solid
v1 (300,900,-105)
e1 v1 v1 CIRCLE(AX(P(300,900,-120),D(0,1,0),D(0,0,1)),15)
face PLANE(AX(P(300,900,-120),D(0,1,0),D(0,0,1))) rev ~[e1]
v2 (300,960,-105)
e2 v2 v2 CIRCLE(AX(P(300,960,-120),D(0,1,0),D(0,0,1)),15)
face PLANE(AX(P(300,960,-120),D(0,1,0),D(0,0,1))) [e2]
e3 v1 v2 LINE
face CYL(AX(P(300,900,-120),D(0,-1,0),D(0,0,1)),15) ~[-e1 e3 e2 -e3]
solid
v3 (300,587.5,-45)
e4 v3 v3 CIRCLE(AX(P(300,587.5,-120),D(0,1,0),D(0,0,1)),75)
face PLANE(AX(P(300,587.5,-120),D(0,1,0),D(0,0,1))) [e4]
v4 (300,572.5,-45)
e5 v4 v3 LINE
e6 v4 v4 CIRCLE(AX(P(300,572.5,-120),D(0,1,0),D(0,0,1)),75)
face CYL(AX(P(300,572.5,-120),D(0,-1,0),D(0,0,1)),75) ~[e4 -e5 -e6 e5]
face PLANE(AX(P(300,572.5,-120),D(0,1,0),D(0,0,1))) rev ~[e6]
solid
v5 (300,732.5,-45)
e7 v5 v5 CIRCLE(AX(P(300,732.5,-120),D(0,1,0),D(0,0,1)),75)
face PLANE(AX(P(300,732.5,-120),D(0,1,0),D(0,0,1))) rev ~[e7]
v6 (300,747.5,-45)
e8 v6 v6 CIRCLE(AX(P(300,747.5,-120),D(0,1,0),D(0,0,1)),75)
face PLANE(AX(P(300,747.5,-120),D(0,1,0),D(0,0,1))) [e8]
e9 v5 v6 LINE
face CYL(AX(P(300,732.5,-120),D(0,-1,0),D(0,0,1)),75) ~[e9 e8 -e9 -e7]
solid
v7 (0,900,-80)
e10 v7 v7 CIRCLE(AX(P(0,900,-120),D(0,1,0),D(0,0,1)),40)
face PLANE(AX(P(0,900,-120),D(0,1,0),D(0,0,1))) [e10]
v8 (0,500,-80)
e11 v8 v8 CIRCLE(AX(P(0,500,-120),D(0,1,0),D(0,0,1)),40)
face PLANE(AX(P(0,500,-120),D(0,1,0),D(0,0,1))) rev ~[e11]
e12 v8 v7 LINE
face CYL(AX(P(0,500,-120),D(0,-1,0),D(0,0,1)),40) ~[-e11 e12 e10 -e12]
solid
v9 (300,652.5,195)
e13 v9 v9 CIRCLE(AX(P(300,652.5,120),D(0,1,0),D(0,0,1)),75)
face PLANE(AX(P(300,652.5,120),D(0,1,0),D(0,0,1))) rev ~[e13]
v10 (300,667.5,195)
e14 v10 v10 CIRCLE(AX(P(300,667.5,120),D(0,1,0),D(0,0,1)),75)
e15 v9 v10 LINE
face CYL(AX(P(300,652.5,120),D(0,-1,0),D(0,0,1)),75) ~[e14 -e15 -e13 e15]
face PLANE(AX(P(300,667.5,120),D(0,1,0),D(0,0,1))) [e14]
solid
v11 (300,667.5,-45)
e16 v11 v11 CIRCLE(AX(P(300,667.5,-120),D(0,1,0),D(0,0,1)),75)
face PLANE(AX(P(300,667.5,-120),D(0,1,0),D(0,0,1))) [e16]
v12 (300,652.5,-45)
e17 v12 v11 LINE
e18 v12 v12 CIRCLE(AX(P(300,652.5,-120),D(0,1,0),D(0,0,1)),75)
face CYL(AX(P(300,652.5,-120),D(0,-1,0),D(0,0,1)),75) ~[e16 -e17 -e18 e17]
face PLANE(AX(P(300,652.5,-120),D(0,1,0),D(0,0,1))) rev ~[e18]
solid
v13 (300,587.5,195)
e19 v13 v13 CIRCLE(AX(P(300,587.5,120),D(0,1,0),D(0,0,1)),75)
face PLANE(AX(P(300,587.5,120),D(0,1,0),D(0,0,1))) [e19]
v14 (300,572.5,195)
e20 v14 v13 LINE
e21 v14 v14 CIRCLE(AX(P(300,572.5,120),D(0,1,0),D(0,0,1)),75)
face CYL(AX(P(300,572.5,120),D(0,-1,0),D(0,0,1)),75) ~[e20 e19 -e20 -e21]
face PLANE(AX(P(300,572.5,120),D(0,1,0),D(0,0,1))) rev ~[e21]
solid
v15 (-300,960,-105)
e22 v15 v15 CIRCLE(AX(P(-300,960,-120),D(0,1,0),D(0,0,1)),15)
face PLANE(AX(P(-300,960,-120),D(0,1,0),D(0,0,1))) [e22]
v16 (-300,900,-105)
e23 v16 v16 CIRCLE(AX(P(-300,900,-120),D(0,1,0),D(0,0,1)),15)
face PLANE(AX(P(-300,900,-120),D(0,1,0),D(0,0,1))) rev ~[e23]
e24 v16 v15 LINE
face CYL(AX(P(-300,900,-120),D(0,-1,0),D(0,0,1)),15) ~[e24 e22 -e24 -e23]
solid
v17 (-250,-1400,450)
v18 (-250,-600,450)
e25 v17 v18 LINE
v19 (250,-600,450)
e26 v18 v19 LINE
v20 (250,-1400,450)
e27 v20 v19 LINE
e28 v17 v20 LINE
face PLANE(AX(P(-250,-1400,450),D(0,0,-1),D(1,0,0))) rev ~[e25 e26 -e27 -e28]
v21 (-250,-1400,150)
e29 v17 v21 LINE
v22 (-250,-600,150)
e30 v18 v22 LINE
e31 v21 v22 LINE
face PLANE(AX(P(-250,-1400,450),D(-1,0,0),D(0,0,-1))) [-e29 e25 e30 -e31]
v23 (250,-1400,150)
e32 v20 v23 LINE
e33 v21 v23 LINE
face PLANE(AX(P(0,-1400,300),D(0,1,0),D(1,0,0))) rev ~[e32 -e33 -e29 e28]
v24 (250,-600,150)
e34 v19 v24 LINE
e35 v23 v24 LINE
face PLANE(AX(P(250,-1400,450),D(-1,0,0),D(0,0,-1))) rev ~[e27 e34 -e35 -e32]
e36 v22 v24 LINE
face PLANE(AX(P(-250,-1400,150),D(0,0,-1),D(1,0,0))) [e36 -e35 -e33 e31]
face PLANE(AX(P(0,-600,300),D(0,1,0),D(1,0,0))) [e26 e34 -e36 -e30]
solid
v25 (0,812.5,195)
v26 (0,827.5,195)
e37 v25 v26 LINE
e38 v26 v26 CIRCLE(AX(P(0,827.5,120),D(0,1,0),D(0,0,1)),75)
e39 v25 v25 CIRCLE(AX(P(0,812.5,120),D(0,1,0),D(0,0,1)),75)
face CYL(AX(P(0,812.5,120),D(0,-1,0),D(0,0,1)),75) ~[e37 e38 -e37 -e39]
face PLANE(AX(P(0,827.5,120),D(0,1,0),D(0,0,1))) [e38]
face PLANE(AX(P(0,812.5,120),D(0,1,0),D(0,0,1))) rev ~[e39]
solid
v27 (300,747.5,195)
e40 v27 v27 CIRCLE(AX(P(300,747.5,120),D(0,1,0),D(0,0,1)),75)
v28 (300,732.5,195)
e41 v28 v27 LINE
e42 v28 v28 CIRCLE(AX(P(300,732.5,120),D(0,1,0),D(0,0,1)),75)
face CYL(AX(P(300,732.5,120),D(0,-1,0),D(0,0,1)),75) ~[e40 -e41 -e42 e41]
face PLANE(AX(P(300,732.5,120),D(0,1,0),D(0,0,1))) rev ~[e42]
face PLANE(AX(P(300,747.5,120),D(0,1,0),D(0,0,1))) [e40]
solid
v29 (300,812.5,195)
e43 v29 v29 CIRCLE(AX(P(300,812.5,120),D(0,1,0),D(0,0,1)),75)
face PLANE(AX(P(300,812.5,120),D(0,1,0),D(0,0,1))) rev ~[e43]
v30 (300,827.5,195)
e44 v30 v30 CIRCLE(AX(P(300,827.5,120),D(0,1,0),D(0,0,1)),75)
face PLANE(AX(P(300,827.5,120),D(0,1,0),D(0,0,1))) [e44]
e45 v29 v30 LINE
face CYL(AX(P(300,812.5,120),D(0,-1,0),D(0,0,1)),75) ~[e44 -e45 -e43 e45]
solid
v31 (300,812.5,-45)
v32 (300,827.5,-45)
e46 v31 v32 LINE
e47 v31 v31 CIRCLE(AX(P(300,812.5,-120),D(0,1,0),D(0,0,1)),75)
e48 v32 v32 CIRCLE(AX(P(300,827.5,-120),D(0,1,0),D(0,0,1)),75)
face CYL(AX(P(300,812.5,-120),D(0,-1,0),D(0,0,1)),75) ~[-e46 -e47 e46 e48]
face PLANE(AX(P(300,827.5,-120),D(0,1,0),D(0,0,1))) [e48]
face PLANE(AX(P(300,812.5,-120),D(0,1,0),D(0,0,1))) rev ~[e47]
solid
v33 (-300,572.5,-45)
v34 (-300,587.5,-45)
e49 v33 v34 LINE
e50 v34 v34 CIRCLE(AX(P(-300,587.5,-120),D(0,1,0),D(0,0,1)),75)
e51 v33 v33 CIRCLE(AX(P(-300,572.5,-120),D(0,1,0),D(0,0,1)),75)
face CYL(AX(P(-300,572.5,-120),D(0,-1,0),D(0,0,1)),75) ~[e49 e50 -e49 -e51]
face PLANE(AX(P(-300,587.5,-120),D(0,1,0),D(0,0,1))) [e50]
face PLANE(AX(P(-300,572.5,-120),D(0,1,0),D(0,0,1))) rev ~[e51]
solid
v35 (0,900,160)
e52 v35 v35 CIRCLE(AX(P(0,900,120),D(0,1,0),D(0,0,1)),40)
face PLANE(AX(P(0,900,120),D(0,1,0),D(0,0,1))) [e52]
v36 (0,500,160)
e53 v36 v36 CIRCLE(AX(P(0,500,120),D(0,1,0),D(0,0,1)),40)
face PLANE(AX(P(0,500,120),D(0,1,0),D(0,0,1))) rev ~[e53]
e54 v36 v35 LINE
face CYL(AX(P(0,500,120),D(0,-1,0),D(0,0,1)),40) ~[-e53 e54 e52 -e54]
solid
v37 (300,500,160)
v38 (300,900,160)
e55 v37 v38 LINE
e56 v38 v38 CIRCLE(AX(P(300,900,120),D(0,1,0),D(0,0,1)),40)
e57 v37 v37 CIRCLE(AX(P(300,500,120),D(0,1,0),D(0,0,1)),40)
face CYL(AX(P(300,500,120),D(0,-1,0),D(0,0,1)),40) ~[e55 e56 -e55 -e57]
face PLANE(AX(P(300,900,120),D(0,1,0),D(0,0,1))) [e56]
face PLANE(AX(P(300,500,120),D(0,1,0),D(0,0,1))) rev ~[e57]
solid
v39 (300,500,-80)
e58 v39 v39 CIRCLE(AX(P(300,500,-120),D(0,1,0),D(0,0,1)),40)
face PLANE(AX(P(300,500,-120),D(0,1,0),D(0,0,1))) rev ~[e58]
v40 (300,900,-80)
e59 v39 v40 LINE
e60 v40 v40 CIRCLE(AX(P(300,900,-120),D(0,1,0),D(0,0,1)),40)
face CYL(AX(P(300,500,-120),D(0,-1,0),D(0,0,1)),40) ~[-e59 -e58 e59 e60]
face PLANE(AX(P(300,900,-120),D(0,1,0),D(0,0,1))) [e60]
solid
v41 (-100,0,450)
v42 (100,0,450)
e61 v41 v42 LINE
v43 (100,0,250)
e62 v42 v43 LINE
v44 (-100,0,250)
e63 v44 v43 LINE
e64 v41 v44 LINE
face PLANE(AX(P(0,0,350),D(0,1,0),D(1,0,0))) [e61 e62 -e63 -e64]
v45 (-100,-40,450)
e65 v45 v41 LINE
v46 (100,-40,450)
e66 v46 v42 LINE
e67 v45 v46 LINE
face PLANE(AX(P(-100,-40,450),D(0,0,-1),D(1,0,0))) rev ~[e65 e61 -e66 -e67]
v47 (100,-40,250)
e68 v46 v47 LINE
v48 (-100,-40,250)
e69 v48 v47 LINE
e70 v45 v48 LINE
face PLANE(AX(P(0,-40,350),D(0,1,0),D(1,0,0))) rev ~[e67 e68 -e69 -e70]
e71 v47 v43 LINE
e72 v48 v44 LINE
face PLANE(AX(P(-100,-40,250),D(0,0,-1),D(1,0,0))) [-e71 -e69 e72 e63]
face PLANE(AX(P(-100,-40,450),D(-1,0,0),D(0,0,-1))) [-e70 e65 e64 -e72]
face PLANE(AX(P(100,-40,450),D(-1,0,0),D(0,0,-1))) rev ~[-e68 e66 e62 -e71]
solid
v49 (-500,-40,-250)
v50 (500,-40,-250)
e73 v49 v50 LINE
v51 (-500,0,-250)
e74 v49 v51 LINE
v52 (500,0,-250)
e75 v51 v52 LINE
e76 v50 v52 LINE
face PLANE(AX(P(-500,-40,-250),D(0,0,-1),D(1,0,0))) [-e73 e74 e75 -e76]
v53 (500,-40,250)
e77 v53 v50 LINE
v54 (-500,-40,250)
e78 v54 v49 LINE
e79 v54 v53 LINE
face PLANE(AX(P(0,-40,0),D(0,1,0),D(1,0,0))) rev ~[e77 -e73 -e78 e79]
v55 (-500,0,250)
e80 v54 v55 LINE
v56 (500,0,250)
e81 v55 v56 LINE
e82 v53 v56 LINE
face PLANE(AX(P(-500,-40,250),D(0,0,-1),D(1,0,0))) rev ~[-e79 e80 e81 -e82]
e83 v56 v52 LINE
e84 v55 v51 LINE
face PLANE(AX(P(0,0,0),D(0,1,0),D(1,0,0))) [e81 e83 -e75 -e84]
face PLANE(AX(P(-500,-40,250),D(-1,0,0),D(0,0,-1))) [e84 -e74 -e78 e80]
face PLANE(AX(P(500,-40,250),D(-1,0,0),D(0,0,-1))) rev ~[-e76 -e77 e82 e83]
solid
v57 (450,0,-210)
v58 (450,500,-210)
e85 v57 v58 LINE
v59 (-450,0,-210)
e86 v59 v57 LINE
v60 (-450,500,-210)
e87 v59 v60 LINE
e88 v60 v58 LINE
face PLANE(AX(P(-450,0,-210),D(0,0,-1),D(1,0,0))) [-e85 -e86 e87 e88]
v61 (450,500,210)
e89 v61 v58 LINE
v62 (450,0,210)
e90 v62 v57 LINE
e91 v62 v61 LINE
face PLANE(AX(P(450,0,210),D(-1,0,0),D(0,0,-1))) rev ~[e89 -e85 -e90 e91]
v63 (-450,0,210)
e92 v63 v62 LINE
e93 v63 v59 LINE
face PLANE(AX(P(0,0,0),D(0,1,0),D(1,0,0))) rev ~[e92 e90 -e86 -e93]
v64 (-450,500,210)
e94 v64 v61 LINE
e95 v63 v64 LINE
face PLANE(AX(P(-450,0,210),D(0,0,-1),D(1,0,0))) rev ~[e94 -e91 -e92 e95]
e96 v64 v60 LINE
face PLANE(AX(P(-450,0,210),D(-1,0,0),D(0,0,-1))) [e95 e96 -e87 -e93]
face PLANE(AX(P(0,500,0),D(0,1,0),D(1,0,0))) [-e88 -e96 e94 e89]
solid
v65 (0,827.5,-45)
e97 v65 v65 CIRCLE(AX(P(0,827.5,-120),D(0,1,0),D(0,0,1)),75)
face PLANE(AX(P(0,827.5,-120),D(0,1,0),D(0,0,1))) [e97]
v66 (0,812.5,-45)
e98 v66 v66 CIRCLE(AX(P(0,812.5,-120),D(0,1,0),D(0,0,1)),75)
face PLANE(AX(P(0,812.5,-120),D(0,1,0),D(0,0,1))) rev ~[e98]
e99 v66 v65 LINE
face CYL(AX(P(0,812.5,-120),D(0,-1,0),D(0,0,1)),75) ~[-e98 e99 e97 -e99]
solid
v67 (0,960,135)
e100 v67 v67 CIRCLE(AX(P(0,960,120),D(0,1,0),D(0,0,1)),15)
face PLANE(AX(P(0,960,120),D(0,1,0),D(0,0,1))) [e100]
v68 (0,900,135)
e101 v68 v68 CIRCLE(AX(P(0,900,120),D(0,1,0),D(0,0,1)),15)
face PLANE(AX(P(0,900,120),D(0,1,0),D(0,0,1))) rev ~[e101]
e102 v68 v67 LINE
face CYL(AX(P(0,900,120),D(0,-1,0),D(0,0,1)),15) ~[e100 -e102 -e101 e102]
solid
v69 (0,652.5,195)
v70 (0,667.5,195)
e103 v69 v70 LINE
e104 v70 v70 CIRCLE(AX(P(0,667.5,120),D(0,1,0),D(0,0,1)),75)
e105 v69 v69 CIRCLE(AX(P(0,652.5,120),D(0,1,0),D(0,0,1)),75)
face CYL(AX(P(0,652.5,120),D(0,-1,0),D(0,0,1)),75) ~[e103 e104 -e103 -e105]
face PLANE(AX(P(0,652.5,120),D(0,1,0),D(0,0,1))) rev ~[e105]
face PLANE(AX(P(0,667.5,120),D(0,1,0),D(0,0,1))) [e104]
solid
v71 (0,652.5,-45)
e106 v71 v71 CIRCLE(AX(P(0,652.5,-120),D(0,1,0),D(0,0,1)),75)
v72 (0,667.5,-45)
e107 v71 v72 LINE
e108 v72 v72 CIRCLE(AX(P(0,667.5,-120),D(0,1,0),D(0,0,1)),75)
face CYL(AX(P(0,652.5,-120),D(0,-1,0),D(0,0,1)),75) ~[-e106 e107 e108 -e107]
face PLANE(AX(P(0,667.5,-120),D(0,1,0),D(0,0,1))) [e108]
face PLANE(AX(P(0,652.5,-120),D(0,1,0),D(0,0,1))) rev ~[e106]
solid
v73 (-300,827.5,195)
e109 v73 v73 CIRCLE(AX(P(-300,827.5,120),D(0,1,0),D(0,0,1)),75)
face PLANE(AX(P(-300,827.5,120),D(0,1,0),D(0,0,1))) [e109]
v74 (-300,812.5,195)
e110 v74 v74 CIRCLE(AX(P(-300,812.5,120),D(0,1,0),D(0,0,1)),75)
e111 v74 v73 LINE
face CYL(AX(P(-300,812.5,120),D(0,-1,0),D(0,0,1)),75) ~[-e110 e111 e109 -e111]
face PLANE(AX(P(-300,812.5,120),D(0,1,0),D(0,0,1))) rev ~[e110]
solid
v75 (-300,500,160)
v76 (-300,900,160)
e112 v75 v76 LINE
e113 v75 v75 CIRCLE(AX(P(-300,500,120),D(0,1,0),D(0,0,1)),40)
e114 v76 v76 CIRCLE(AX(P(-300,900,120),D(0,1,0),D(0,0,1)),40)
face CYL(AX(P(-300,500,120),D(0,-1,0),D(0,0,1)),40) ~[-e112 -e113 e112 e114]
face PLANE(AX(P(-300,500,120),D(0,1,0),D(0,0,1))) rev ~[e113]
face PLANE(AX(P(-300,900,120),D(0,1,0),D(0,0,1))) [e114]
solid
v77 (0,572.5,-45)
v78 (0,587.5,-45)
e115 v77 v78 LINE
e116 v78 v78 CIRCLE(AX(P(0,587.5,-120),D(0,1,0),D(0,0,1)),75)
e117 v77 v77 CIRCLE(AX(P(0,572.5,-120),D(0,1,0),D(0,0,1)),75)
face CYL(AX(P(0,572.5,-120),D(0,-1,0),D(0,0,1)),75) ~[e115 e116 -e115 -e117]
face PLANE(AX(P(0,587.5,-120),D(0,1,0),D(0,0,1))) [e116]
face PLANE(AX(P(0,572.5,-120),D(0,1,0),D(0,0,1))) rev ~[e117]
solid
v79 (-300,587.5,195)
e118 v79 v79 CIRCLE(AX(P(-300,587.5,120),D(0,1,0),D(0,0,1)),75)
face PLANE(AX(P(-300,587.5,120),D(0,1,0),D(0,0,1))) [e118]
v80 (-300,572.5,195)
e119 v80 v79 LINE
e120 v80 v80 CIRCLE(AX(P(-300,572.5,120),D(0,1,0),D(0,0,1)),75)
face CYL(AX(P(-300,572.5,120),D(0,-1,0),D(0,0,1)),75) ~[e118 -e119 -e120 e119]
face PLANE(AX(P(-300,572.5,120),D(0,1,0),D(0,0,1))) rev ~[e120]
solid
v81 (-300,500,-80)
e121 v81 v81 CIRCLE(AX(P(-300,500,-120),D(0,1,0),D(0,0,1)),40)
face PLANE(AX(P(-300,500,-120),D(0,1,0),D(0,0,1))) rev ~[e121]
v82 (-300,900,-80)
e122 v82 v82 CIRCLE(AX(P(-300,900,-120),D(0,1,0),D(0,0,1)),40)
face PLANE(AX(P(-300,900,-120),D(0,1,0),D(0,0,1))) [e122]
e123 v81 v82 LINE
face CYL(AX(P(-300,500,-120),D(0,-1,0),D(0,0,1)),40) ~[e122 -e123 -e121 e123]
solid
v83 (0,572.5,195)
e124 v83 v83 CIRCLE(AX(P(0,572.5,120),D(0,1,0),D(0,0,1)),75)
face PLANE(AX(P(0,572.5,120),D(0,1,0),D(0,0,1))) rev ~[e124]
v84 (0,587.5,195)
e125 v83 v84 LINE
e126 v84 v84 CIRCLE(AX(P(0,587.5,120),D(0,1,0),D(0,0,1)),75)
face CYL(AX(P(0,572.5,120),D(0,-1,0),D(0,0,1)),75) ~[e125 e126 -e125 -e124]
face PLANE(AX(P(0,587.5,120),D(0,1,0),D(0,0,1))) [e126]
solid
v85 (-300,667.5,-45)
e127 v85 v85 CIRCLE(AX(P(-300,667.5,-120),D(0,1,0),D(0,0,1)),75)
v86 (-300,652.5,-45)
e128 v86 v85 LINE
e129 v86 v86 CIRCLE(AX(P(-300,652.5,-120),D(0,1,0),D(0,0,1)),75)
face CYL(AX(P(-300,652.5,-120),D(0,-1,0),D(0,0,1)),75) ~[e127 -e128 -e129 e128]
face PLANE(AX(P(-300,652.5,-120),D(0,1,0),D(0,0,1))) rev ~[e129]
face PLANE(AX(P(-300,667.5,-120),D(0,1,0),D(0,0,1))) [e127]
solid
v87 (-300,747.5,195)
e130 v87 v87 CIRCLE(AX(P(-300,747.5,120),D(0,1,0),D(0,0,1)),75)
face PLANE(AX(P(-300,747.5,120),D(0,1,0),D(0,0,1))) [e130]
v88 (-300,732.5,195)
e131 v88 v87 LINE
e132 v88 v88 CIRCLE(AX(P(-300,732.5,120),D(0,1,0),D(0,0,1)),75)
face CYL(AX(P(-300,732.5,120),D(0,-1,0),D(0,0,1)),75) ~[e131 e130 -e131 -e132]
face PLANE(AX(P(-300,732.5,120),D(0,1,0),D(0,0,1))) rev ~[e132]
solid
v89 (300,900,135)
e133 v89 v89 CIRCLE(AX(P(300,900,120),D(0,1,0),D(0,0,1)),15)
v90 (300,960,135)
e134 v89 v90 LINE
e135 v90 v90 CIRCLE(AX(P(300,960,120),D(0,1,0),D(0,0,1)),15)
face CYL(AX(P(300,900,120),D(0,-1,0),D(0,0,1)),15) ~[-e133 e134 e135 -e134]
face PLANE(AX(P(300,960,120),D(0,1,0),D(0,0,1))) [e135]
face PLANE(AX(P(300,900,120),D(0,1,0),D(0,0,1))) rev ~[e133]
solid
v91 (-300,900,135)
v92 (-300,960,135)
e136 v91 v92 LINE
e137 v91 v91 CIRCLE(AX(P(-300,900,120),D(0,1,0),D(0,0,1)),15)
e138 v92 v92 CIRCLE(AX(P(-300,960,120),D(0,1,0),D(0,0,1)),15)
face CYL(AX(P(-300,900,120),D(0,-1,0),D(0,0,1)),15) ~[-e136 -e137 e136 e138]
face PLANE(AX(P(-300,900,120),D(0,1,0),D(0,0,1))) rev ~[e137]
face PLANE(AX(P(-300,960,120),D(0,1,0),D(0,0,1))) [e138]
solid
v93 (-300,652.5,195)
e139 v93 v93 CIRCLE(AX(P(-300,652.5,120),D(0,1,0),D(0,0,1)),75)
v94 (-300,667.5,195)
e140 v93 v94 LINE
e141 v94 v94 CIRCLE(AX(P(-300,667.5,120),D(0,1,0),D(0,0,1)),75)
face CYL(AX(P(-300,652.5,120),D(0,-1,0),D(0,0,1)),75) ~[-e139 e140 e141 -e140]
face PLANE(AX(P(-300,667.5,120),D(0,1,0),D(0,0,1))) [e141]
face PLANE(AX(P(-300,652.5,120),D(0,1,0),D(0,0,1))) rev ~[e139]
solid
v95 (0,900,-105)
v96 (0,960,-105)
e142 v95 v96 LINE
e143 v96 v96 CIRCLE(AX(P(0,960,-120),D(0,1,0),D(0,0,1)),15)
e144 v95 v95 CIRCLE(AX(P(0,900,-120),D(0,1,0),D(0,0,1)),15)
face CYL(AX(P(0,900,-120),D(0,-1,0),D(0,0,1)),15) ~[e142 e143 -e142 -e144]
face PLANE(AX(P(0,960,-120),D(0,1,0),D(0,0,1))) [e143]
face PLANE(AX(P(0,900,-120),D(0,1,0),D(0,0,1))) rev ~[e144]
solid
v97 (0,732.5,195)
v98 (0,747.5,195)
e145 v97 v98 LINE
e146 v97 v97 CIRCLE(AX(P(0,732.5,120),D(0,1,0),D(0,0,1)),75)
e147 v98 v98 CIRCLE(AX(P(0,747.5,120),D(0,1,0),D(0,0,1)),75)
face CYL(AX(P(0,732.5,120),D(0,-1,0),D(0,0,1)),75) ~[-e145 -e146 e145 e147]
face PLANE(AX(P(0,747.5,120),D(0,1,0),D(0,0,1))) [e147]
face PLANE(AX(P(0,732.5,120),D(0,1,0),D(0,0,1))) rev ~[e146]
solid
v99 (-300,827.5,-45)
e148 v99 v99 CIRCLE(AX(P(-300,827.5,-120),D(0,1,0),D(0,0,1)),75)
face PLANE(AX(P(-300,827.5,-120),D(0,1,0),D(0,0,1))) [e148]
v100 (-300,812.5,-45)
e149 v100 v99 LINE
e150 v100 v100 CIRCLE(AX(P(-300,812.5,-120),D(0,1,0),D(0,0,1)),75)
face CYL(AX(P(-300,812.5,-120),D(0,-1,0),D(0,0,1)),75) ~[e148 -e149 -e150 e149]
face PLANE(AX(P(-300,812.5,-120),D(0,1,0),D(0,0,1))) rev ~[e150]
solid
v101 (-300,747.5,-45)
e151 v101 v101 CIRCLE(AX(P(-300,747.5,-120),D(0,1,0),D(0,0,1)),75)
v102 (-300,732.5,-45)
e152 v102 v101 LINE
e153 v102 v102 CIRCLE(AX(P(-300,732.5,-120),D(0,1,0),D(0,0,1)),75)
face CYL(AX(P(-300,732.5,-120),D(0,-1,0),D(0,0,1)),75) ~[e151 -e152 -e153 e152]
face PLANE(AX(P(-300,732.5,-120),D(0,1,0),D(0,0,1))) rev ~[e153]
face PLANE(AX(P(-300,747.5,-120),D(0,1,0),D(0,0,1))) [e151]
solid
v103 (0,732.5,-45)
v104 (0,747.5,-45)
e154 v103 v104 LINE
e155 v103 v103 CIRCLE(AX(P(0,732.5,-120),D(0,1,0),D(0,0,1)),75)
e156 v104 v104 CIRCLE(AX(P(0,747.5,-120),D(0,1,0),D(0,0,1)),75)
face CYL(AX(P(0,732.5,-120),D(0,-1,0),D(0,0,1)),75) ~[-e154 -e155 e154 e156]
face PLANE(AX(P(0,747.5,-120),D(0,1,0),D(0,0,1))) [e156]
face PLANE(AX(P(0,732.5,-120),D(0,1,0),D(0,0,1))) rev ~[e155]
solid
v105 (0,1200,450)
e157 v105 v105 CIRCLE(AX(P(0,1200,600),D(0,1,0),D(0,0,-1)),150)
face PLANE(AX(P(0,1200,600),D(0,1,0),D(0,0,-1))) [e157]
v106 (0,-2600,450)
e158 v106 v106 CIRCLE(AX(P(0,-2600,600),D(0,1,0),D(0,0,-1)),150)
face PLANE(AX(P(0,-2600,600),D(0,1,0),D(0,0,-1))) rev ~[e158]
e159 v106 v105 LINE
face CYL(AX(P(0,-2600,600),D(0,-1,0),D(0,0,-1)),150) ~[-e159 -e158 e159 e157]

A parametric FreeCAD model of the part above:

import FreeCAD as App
import Part
import Sketcher


def add_polygon(sketch, points):
    """Adds a closed chain of lines whose ends are joined by coincident constraints."""
    first, n = sketch.GeometryCount, len(points)
    for a, b in zip(points, points[1:] + points[:1]):
        sketch.addGeometry(Part.LineSegment(App.Vector(*a, 0), App.Vector(*b, 0)), False)
    for i in range(n):
        sketch.addConstraint(Sketcher.Constraint("Coincident", first + i, 2, first + (i + 1) % n, 1))

doc = App.newDocument("Part")
body = doc.addObject("PartDesign::Body", "Body")

# Sketch on XZ plane
sketch1 = doc.addObject("Sketcher::SketchObject", "Sketch")
body.addObject(sketch1)
sketch1.AttachmentSupport = (doc.XZ_Plane, [""])
sketch1.MapMode = "FlatFace"
add_polygon(sketch1, [(-450, -210), (-450, 210), (450, 210), (450, -210)])  # lines 0-3
sketch1.addConstraint(Sketcher.Constraint("Vertical", 0))
sketch1.addConstraint(Sketcher.Constraint("Horizontal", 1))
sketch1.addConstraint(Sketcher.Constraint("Vertical", 2))
sketch1.addConstraint(Sketcher.Constraint("Horizontal", 3))
sketch1.addConstraint(Sketcher.Constraint("Symmetric", 0, 2, 2, 2, -1, 1))
sketch1.addConstraint(Sketcher.Constraint("DistanceX", 1, 1, 1, 2, 900.0))
sketch1.addConstraint(Sketcher.Constraint("DistanceY", 0, 1, 0, 2, 420.0))
pad1 = doc.addObject("PartDesign::Pad", "Pad")
body.addObject(pad1)
pad1.Profile = sketch1
pad1.Length = 500
pad1.Reversed = True
body2 = doc.addObject("PartDesign::Body", "Body001")

# Sketch on XZ plane
sketch2 = doc.addObject("Sketcher::SketchObject", "Sketch001")
body2.addObject(sketch2)
sketch2.AttachmentSupport = (doc.getObject("XZ_Plane001"), [""])
sketch2.MapMode = "FlatFace"
sketch2.AttachmentOffset = App.Placement(App.Vector(0, 0, 40), App.Rotation())
add_polygon(sketch2, [(-500, -250), (-500, 250), (500, 250), (500, -250)])  # lines 0-3
sketch2.addConstraint(Sketcher.Constraint("Vertical", 0))
sketch2.addConstraint(Sketcher.Constraint("Horizontal", 1))
sketch2.addConstraint(Sketcher.Constraint("Vertical", 2))
sketch2.addConstraint(Sketcher.Constraint("Horizontal", 3))
sketch2.addConstraint(Sketcher.Constraint("Symmetric", 0, 2, 2, 2, -1, 1))
sketch2.addConstraint(Sketcher.Constraint("DistanceX", 1, 1, 1, 2, 1000.0))
sketch2.addConstraint(Sketcher.Constraint("DistanceY", 0, 1, 0, 2, 500.0))
pad2 = doc.addObject("PartDesign::Pad", "Pad001")
body2.addObject(pad2)
pad2.Profile = sketch2
pad2.Length = 40
pad2.Reversed = True
body3 = doc.addObject("PartDesign::Body", "Body002")

# Sketch on XZ plane
sketch3 = doc.addObject("Sketcher::SketchObject", "Sketch002")
body3.addObject(sketch3)
sketch3.AttachmentSupport = (doc.getObject("XZ_Plane002"), [""])
sketch3.MapMode = "FlatFace"
sketch3.AttachmentOffset = App.Placement(App.Vector(0, 0, 40), App.Rotation())
add_polygon(sketch3, [(-100, 250), (-100, 450), (100, 450), (100, 250)])  # lines 0-3
sketch3.addConstraint(Sketcher.Constraint("Vertical", 0))
sketch3.addConstraint(Sketcher.Constraint("Horizontal", 1))
sketch3.addConstraint(Sketcher.Constraint("Vertical", 2))
sketch3.addConstraint(Sketcher.Constraint("Horizontal", 3))
sketch3.addConstraint(Sketcher.Constraint("Equal", 3, 0))
sketch3.addConstraint(Sketcher.Constraint("DistanceX", 1, 1, 1, 2, 200.0))
sketch3.addConstraint(Sketcher.Constraint("DistanceX", 0, 2, -1, 1, 100.0))
sketch3.addConstraint(Sketcher.Constraint("DistanceY", -1, 1, 0, 2, 450.0))
pad3 = doc.addObject("PartDesign::Pad", "Pad002")
body3.addObject(pad3)
pad3.Profile = sketch3
pad3.Length = 40
pad3.Reversed = True
body4 = doc.addObject("PartDesign::Body", "Body003")

# Sketch on XZ plane
sketch4 = doc.addObject("Sketcher::SketchObject", "Sketch003")
body4.addObject(sketch4)
sketch4.AttachmentSupport = (doc.getObject("XZ_Plane003"), [""])
sketch4.MapMode = "FlatFace"
sketch4.AttachmentOffset = App.Placement(App.Vector(0, 0, 1400), App.Rotation())
add_polygon(sketch4, [(-250, 150), (-250, 450), (250, 450), (250, 150)])  # lines 0-3
sketch4.addConstraint(Sketcher.Constraint("Vertical", 0))
sketch4.addConstraint(Sketcher.Constraint("Horizontal", 1))
sketch4.addConstraint(Sketcher.Constraint("Vertical", 2))
sketch4.addConstraint(Sketcher.Constraint("Horizontal", 3))
sketch4.addConstraint(Sketcher.Constraint("DistanceX", 1, 1, 1, 2, 500.0))
sketch4.addConstraint(Sketcher.Constraint("DistanceY", 0, 1, 0, 2, 300.0))
sketch4.addConstraint(Sketcher.Constraint("DistanceX", 0, 2, -1, 1, 250.0))
sketch4.addConstraint(Sketcher.Constraint("DistanceY", -1, 1, 0, 2, 450.0))
pad4 = doc.addObject("PartDesign::Pad", "Pad003")
body4.addObject(pad4)
pad4.Profile = sketch4
pad4.Length = 800
pad4.Reversed = True
body5 = doc.addObject("PartDesign::Body", "Body004")

# Sketch on XZ plane
sketch5 = doc.addObject("Sketcher::SketchObject", "Sketch004")
body5.addObject(sketch5)
sketch5.AttachmentSupport = (doc.getObject("XZ_Plane004"), [""])
sketch5.MapMode = "FlatFace"
sketch5.AttachmentOffset = App.Placement(App.Vector(0, 0, 2600), App.Rotation())
sketch5.addGeometry(Part.Circle(App.Vector(0, 600, 0), App.Vector(0, 0, 1), 150), False)
sketch5.addConstraint(Sketcher.Constraint("PointOnObject", 0, 3, -2))
sketch5.addConstraint(Sketcher.Constraint("Diameter", 0, 300.0))
sketch5.addConstraint(Sketcher.Constraint("DistanceY", -1, 1, 0, 3, 600.0))
pad5 = doc.addObject("PartDesign::Pad", "Pad004")
body5.addObject(pad5)
pad5.Profile = sketch5
pad5.Length = 3800
pad5.Reversed = True
body6 = doc.addObject("PartDesign::Body", "Body005")

# Sketch on XZ plane
sketch6 = doc.addObject("Sketcher::SketchObject", "Sketch005")
body6.addObject(sketch6)
sketch6.AttachmentSupport = (doc.getObject("XZ_Plane005"), [""])
sketch6.MapMode = "FlatFace"
sketch6.AttachmentOffset = App.Placement(App.Vector(0, 0, -500), App.Rotation())
sketch6.addGeometry(Part.Circle(App.Vector(-300, -120, 0), App.Vector(0, 0, 1), 40), False)
sketch6.addConstraint(Sketcher.Constraint("Diameter", 0, 80.0))
sketch6.addConstraint(Sketcher.Constraint("DistanceX", 0, 3, -1, 1, 300.0))
sketch6.addConstraint(Sketcher.Constraint("DistanceY", 0, 3, -1, 1, 120.0))
pad6 = doc.addObject("PartDesign::Pad", "Pad005")
body6.addObject(pad6)
pad6.Profile = sketch6
pad6.Length = 400
pad6.Reversed = True
body7 = doc.addObject("PartDesign::Body", "Body006")

# Sketch on XZ plane
sketch7 = doc.addObject("Sketcher::SketchObject", "Sketch006")
body7.addObject(sketch7)
sketch7.AttachmentSupport = (doc.getObject("XZ_Plane006"), [""])
sketch7.MapMode = "FlatFace"
sketch7.AttachmentOffset = App.Placement(App.Vector(0, 0, -572.5), App.Rotation())
sketch7.addGeometry(Part.Circle(App.Vector(-300, -120, 0), App.Vector(0, 0, 1), 75), False)
sketch7.addConstraint(Sketcher.Constraint("Diameter", 0, 150.0))
sketch7.addConstraint(Sketcher.Constraint("DistanceX", 0, 3, -1, 1, 300.0))
sketch7.addConstraint(Sketcher.Constraint("DistanceY", 0, 3, -1, 1, 120.0))
pad7 = doc.addObject("PartDesign::Pad", "Pad006")
body7.addObject(pad7)
pad7.Profile = sketch7
pad7.Length = 15
pad7.Reversed = True
body8 = doc.addObject("PartDesign::Body", "Body007")

# Sketch on XZ plane
sketch8 = doc.addObject("Sketcher::SketchObject", "Sketch007")
body8.addObject(sketch8)
sketch8.AttachmentSupport = (doc.getObject("XZ_Plane007"), [""])
sketch8.MapMode = "FlatFace"
sketch8.AttachmentOffset = App.Placement(App.Vector(0, 0, -652.5), App.Rotation())
sketch8.addGeometry(Part.Circle(App.Vector(-300, -120, 0), App.Vector(0, 0, 1), 75), False)
sketch8.addConstraint(Sketcher.Constraint("Diameter", 0, 150.0))
sketch8.addConstraint(Sketcher.Constraint("DistanceX", 0, 3, -1, 1, 300.0))
sketch8.addConstraint(Sketcher.Constraint("DistanceY", 0, 3, -1, 1, 120.0))
pad8 = doc.addObject("PartDesign::Pad", "Pad007")
body8.addObject(pad8)
pad8.Profile = sketch8
pad8.Length = 15
pad8.Reversed = True
body9 = doc.addObject("PartDesign::Body", "Body008")

# Sketch on XZ plane
sketch9 = doc.addObject("Sketcher::SketchObject", "Sketch008")
body9.addObject(sketch9)
sketch9.AttachmentSupport = (doc.getObject("XZ_Plane008"), [""])
sketch9.MapMode = "FlatFace"
sketch9.AttachmentOffset = App.Placement(App.Vector(0, 0, -732.5), App.Rotation())
sketch9.addGeometry(Part.Circle(App.Vector(-300, -120, 0), App.Vector(0, 0, 1), 75), False)
sketch9.addConstraint(Sketcher.Constraint("Diameter", 0, 150.0))
sketch9.addConstraint(Sketcher.Constraint("DistanceX", 0, 3, -1, 1, 300.0))
sketch9.addConstraint(Sketcher.Constraint("DistanceY", 0, 3, -1, 1, 120.0))
pad9 = doc.addObject("PartDesign::Pad", "Pad008")
body9.addObject(pad9)
pad9.Profile = sketch9
pad9.Length = 15
pad9.Reversed = True
body10 = doc.addObject("PartDesign::Body", "Body009")

# Sketch on XZ plane
sketch10 = doc.addObject("Sketcher::SketchObject", "Sketch009")
body10.addObject(sketch10)
sketch10.AttachmentSupport = (doc.getObject("XZ_Plane009"), [""])
sketch10.MapMode = "FlatFace"
sketch10.AttachmentOffset = App.Placement(App.Vector(0, 0, -812.5), App.Rotation())
sketch10.addGeometry(Part.Circle(App.Vector(-300, -120, 0), App.Vector(0, 0, 1), 75), False)
sketch10.addConstraint(Sketcher.Constraint("Diameter", 0, 150.0))
sketch10.addConstraint(Sketcher.Constraint("DistanceX", 0, 3, -1, 1, 300.0))
sketch10.addConstraint(Sketcher.Constraint("DistanceY", 0, 3, -1, 1, 120.0))
pad10 = doc.addObject("PartDesign::Pad", "Pad009")
body10.addObject(pad10)
pad10.Profile = sketch10
pad10.Length = 15
pad10.Reversed = True
body11 = doc.addObject("PartDesign::Body", "Body010")

# Sketch on XZ plane
sketch11 = doc.addObject("Sketcher::SketchObject", "Sketch010")
body11.addObject(sketch11)
sketch11.AttachmentSupport = (doc.getObject("XZ_Plane010"), [""])
sketch11.MapMode = "FlatFace"
sketch11.AttachmentOffset = App.Placement(App.Vector(0, 0, -900), App.Rotation())
sketch11.addGeometry(Part.Circle(App.Vector(-300, -120, 0), App.Vector(0, 0, 1), 15), False)
sketch11.addConstraint(Sketcher.Constraint("Diameter", 0, 30.0))
sketch11.addConstraint(Sketcher.Constraint("DistanceX", 0, 3, -1, 1, 300.0))
sketch11.addConstraint(Sketcher.Constraint("DistanceY", 0, 3, -1, 1, 120.0))
pad11 = doc.addObject("PartDesign::Pad", "Pad010")
body11.addObject(pad11)
pad11.Profile = sketch11
pad11.Length = 60
pad11.Reversed = True
body12 = doc.addObject("PartDesign::Body", "Body011")

# Sketch on XZ plane
sketch12 = doc.addObject("Sketcher::SketchObject", "Sketch011")
body12.addObject(sketch12)
sketch12.AttachmentSupport = (doc.getObject("XZ_Plane011"), [""])
sketch12.MapMode = "FlatFace"
sketch12.AttachmentOffset = App.Placement(App.Vector(0, 0, -500), App.Rotation())
sketch12.addGeometry(Part.Circle(App.Vector(0, -120, 0), App.Vector(0, 0, 1), 40), False)
sketch12.addConstraint(Sketcher.Constraint("PointOnObject", 0, 3, -2))
sketch12.addConstraint(Sketcher.Constraint("Diameter", 0, 80.0))
sketch12.addConstraint(Sketcher.Constraint("DistanceY", 0, 3, -1, 1, 120.0))
pad12 = doc.addObject("PartDesign::Pad", "Pad011")
body12.addObject(pad12)
pad12.Profile = sketch12
pad12.Length = 400
pad12.Reversed = True
body13 = doc.addObject("PartDesign::Body", "Body012")

# Sketch on XZ plane
sketch13 = doc.addObject("Sketcher::SketchObject", "Sketch012")
body13.addObject(sketch13)
sketch13.AttachmentSupport = (doc.getObject("XZ_Plane012"), [""])
sketch13.MapMode = "FlatFace"
sketch13.AttachmentOffset = App.Placement(App.Vector(0, 0, -572.5), App.Rotation())
sketch13.addGeometry(Part.Circle(App.Vector(0, -120, 0), App.Vector(0, 0, 1), 75), False)
sketch13.addConstraint(Sketcher.Constraint("PointOnObject", 0, 3, -2))
sketch13.addConstraint(Sketcher.Constraint("Diameter", 0, 150.0))
sketch13.addConstraint(Sketcher.Constraint("DistanceY", 0, 3, -1, 1, 120.0))
pad13 = doc.addObject("PartDesign::Pad", "Pad012")
body13.addObject(pad13)
pad13.Profile = sketch13
pad13.Length = 15
pad13.Reversed = True
body14 = doc.addObject("PartDesign::Body", "Body013")

# Sketch on XZ plane
sketch14 = doc.addObject("Sketcher::SketchObject", "Sketch013")
body14.addObject(sketch14)
sketch14.AttachmentSupport = (doc.getObject("XZ_Plane013"), [""])
sketch14.MapMode = "FlatFace"
sketch14.AttachmentOffset = App.Placement(App.Vector(0, 0, -652.5), App.Rotation())
sketch14.addGeometry(Part.Circle(App.Vector(0, -120, 0), App.Vector(0, 0, 1), 75), False)
sketch14.addConstraint(Sketcher.Constraint("PointOnObject", 0, 3, -2))
sketch14.addConstraint(Sketcher.Constraint("Diameter", 0, 150.0))
sketch14.addConstraint(Sketcher.Constraint("DistanceY", 0, 3, -1, 1, 120.0))
pad14 = doc.addObject("PartDesign::Pad", "Pad013")
body14.addObject(pad14)
pad14.Profile = sketch14
pad14.Length = 15
pad14.Reversed = True
body15 = doc.addObject("PartDesign::Body", "Body014")

# Sketch on XZ plane
sketch15 = doc.addObject("Sketcher::SketchObject", "Sketch014")
body15.addObject(sketch15)
sketch15.AttachmentSupport = (doc.getObject("XZ_Plane014"), [""])
sketch15.MapMode = "FlatFace"
sketch15.AttachmentOffset = App.Placement(App.Vector(0, 0, -732.5), App.Rotation())
sketch15.addGeometry(Part.Circle(App.Vector(0, -120, 0), App.Vector(0, 0, 1), 75), False)
sketch15.addConstraint(Sketcher.Constraint("PointOnObject", 0, 3, -2))
sketch15.addConstraint(Sketcher.Constraint("Diameter", 0, 150.0))
sketch15.addConstraint(Sketcher.Constraint("DistanceY", 0, 3, -1, 1, 120.0))
pad15 = doc.addObject("PartDesign::Pad", "Pad014")
body15.addObject(pad15)
pad15.Profile = sketch15
pad15.Length = 15
pad15.Reversed = True
body16 = doc.addObject("PartDesign::Body", "Body015")

# Sketch on XZ plane
sketch16 = doc.addObject("Sketcher::SketchObject", "Sketch015")
body16.addObject(sketch16)
sketch16.AttachmentSupport = (doc.getObject("XZ_Plane015"), [""])
sketch16.MapMode = "FlatFace"
sketch16.AttachmentOffset = App.Placement(App.Vector(0, 0, -812.5), App.Rotation())
sketch16.addGeometry(Part.Circle(App.Vector(0, -120, 0), App.Vector(0, 0, 1), 75), False)
sketch16.addConstraint(Sketcher.Constraint("PointOnObject", 0, 3, -2))
sketch16.addConstraint(Sketcher.Constraint("Diameter", 0, 150.0))
sketch16.addConstraint(Sketcher.Constraint("DistanceY", 0, 3, -1, 1, 120.0))
pad16 = doc.addObject("PartDesign::Pad", "Pad015")
body16.addObject(pad16)
pad16.Profile = sketch16
pad16.Length = 15
pad16.Reversed = True
body17 = doc.addObject("PartDesign::Body", "Body016")

# Sketch on XZ plane
sketch17 = doc.addObject("Sketcher::SketchObject", "Sketch016")
body17.addObject(sketch17)
sketch17.AttachmentSupport = (doc.getObject("XZ_Plane016"), [""])
sketch17.MapMode = "FlatFace"
sketch17.AttachmentOffset = App.Placement(App.Vector(0, 0, -900), App.Rotation())
sketch17.addGeometry(Part.Circle(App.Vector(0, -120, 0), App.Vector(0, 0, 1), 15), False)
sketch17.addConstraint(Sketcher.Constraint("PointOnObject", 0, 3, -2))
sketch17.addConstraint(Sketcher.Constraint("Diameter", 0, 30.0))
sketch17.addConstraint(Sketcher.Constraint("DistanceY", 0, 3, -1, 1, 120.0))
pad17 = doc.addObject("PartDesign::Pad", "Pad016")
body17.addObject(pad17)
pad17.Profile = sketch17
pad17.Length = 60
pad17.Reversed = True
body18 = doc.addObject("PartDesign::Body", "Body017")

# Sketch on XZ plane
sketch18 = doc.addObject("Sketcher::SketchObject", "Sketch017")
body18.addObject(sketch18)
sketch18.AttachmentSupport = (doc.getObject("XZ_Plane017"), [""])
sketch18.MapMode = "FlatFace"
sketch18.AttachmentOffset = App.Placement(App.Vector(0, 0, -500), App.Rotation())
sketch18.addGeometry(Part.Circle(App.Vector(300, -120, 0), App.Vector(0, 0, 1), 40), False)
sketch18.addConstraint(Sketcher.Constraint("Diameter", 0, 80.0))
sketch18.addConstraint(Sketcher.Constraint("DistanceX", -1, 1, 0, 3, 300.0))
sketch18.addConstraint(Sketcher.Constraint("DistanceY", 0, 3, -1, 1, 120.0))
pad18 = doc.addObject("PartDesign::Pad", "Pad017")
body18.addObject(pad18)
pad18.Profile = sketch18
pad18.Length = 400
pad18.Reversed = True
body19 = doc.addObject("PartDesign::Body", "Body018")

# Sketch on XZ plane
sketch19 = doc.addObject("Sketcher::SketchObject", "Sketch018")
body19.addObject(sketch19)
sketch19.AttachmentSupport = (doc.getObject("XZ_Plane018"), [""])
sketch19.MapMode = "FlatFace"
sketch19.AttachmentOffset = App.Placement(App.Vector(0, 0, -572.5), App.Rotation())
sketch19.addGeometry(Part.Circle(App.Vector(300, -120, 0), App.Vector(0, 0, 1), 75), False)
sketch19.addConstraint(Sketcher.Constraint("Diameter", 0, 150.0))
sketch19.addConstraint(Sketcher.Constraint("DistanceX", -1, 1, 0, 3, 300.0))
sketch19.addConstraint(Sketcher.Constraint("DistanceY", 0, 3, -1, 1, 120.0))
pad19 = doc.addObject("PartDesign::Pad", "Pad018")
body19.addObject(pad19)
pad19.Profile = sketch19
pad19.Length = 15
pad19.Reversed = True
body20 = doc.addObject("PartDesign::Body", "Body019")

# Sketch on XZ plane
sketch20 = doc.addObject("Sketcher::SketchObject", "Sketch019")
body20.addObject(sketch20)
sketch20.AttachmentSupport = (doc.getObject("XZ_Plane019"), [""])
sketch20.MapMode = "FlatFace"
sketch20.AttachmentOffset = App.Placement(App.Vector(0, 0, -652.5), App.Rotation())
sketch20.addGeometry(Part.Circle(App.Vector(300, -120, 0), App.Vector(0, 0, 1), 75), False)
sketch20.addConstraint(Sketcher.Constraint("Diameter", 0, 150.0))
sketch20.addConstraint(Sketcher.Constraint("DistanceX", -1, 1, 0, 3, 300.0))
sketch20.addConstraint(Sketcher.Constraint("DistanceY", 0, 3, -1, 1, 120.0))
pad20 = doc.addObject("PartDesign::Pad", "Pad019")
body20.addObject(pad20)
pad20.Profile = sketch20
pad20.Length = 15
pad20.Reversed = True
body21 = doc.addObject("PartDesign::Body", "Body020")

# Sketch on XZ plane
sketch21 = doc.addObject("Sketcher::SketchObject", "Sketch020")
body21.addObject(sketch21)
sketch21.AttachmentSupport = (doc.getObject("XZ_Plane020"), [""])
sketch21.MapMode = "FlatFace"
sketch21.AttachmentOffset = App.Placement(App.Vector(0, 0, -732.5), App.Rotation())
sketch21.addGeometry(Part.Circle(App.Vector(300, -120, 0), App.Vector(0, 0, 1), 75), False)
sketch21.addConstraint(Sketcher.Constraint("Diameter", 0, 150.0))
sketch21.addConstraint(Sketcher.Constraint("DistanceX", -1, 1, 0, 3, 300.0))
sketch21.addConstraint(Sketcher.Constraint("DistanceY", 0, 3, -1, 1, 120.0))
pad21 = doc.addObject("PartDesign::Pad", "Pad020")
body21.addObject(pad21)
pad21.Profile = sketch21
pad21.Length = 15
pad21.Reversed = True
body22 = doc.addObject("PartDesign::Body", "Body021")

# Sketch on XZ plane
sketch22 = doc.addObject("Sketcher::SketchObject", "Sketch021")
body22.addObject(sketch22)
sketch22.AttachmentSupport = (doc.getObject("XZ_Plane021"), [""])
sketch22.MapMode = "FlatFace"
sketch22.AttachmentOffset = App.Placement(App.Vector(0, 0, -812.5), App.Rotation())
sketch22.addGeometry(Part.Circle(App.Vector(300, -120, 0), App.Vector(0, 0, 1), 75), False)
sketch22.addConstraint(Sketcher.Constraint("Diameter", 0, 150.0))
sketch22.addConstraint(Sketcher.Constraint("DistanceX", -1, 1, 0, 3, 300.0))
sketch22.addConstraint(Sketcher.Constraint("DistanceY", 0, 3, -1, 1, 120.0))
pad22 = doc.addObject("PartDesign::Pad", "Pad021")
body22.addObject(pad22)
pad22.Profile = sketch22
pad22.Length = 15
pad22.Reversed = True
body23 = doc.addObject("PartDesign::Body", "Body022")

# Sketch on XZ plane
sketch23 = doc.addObject("Sketcher::SketchObject", "Sketch022")
body23.addObject(sketch23)
sketch23.AttachmentSupport = (doc.getObject("XZ_Plane022"), [""])
sketch23.MapMode = "FlatFace"
sketch23.AttachmentOffset = App.Placement(App.Vector(0, 0, -900), App.Rotation())
sketch23.addGeometry(Part.Circle(App.Vector(300, -120, 0), App.Vector(0, 0, 1), 15), False)
sketch23.addConstraint(Sketcher.Constraint("Diameter", 0, 30.0))
sketch23.addConstraint(Sketcher.Constraint("DistanceX", -1, 1, 0, 3, 300.0))
sketch23.addConstraint(Sketcher.Constraint("DistanceY", 0, 3, -1, 1, 120.0))
pad23 = doc.addObject("PartDesign::Pad", "Pad022")
body23.addObject(pad23)
pad23.Profile = sketch23
pad23.Length = 60
pad23.Reversed = True
body24 = doc.addObject("PartDesign::Body", "Body023")

# Sketch on XZ plane
sketch24 = doc.addObject("Sketcher::SketchObject", "Sketch023")
body24.addObject(sketch24)
sketch24.AttachmentSupport = (doc.getObject("XZ_Plane023"), [""])
sketch24.MapMode = "FlatFace"
sketch24.AttachmentOffset = App.Placement(App.Vector(0, 0, -500), App.Rotation())
sketch24.addGeometry(Part.Circle(App.Vector(-300, 120, 0), App.Vector(0, 0, 1), 40), False)
sketch24.addConstraint(Sketcher.Constraint("Diameter", 0, 80.0))
sketch24.addConstraint(Sketcher.Constraint("DistanceX", 0, 3, -1, 1, 300.0))
sketch24.addConstraint(Sketcher.Constraint("DistanceY", -1, 1, 0, 3, 120.0))
pad24 = doc.addObject("PartDesign::Pad", "Pad023")
body24.addObject(pad24)
pad24.Profile = sketch24
pad24.Length = 400
pad24.Reversed = True
body25 = doc.addObject("PartDesign::Body", "Body024")

# Sketch on XZ plane
sketch25 = doc.addObject("Sketcher::SketchObject", "Sketch024")
body25.addObject(sketch25)
sketch25.AttachmentSupport = (doc.getObject("XZ_Plane024"), [""])
sketch25.MapMode = "FlatFace"
sketch25.AttachmentOffset = App.Placement(App.Vector(0, 0, -572.5), App.Rotation())
sketch25.addGeometry(Part.Circle(App.Vector(-300, 120, 0), App.Vector(0, 0, 1), 75), False)
sketch25.addConstraint(Sketcher.Constraint("Diameter", 0, 150.0))
sketch25.addConstraint(Sketcher.Constraint("DistanceX", 0, 3, -1, 1, 300.0))
sketch25.addConstraint(Sketcher.Constraint("DistanceY", -1, 1, 0, 3, 120.0))
pad25 = doc.addObject("PartDesign::Pad", "Pad024")
body25.addObject(pad25)
pad25.Profile = sketch25
pad25.Length = 15
pad25.Reversed = True
body26 = doc.addObject("PartDesign::Body", "Body025")

# Sketch on XZ plane
sketch26 = doc.addObject("Sketcher::SketchObject", "Sketch025")
body26.addObject(sketch26)
sketch26.AttachmentSupport = (doc.getObject("XZ_Plane025"), [""])
sketch26.MapMode = "FlatFace"
sketch26.AttachmentOffset = App.Placement(App.Vector(0, 0, -652.5), App.Rotation())
sketch26.addGeometry(Part.Circle(App.Vector(-300, 120, 0), App.Vector(0, 0, 1), 75), False)
sketch26.addConstraint(Sketcher.Constraint("Diameter", 0, 150.0))
sketch26.addConstraint(Sketcher.Constraint("DistanceX", 0, 3, -1, 1, 300.0))
sketch26.addConstraint(Sketcher.Constraint("DistanceY", -1, 1, 0, 3, 120.0))
pad26 = doc.addObject("PartDesign::Pad", "Pad025")
body26.addObject(pad26)
pad26.Profile = sketch26
pad26.Length = 15
pad26.Reversed = True
body27 = doc.addObject("PartDesign::Body", "Body026")

# Sketch on XZ plane
sketch27 = doc.addObject("Sketcher::SketchObject", "Sketch026")
body27.addObject(sketch27)
sketch27.AttachmentSupport = (doc.getObject("XZ_Plane026"), [""])
sketch27.MapMode = "FlatFace"
sketch27.AttachmentOffset = App.Placement(App.Vector(0, 0, -732.5), App.Rotation())
sketch27.addGeometry(Part.Circle(App.Vector(-300, 120, 0), App.Vector(0, 0, 1), 75), False)
sketch27.addConstraint(Sketcher.Constraint("Diameter", 0, 150.0))
sketch27.addConstraint(Sketcher.Constraint("DistanceX", 0, 3, -1, 1, 300.0))
sketch27.addConstraint(Sketcher.Constraint("DistanceY", -1, 1, 0, 3, 120.0))
pad27 = doc.addObject("PartDesign::Pad", "Pad026")
body27.addObject(pad27)
pad27.Profile = sketch27
pad27.Length = 15
pad27.Reversed = True
body28 = doc.addObject("PartDesign::Body", "Body027")

# Sketch on XZ plane
sketch28 = doc.addObject("Sketcher::SketchObject", "Sketch027")
body28.addObject(sketch28)
sketch28.AttachmentSupport = (doc.getObject("XZ_Plane027"), [""])
sketch28.MapMode = "FlatFace"
sketch28.AttachmentOffset = App.Placement(App.Vector(0, 0, -812.5), App.Rotation())
sketch28.addGeometry(Part.Circle(App.Vector(-300, 120, 0), App.Vector(0, 0, 1), 75), False)
sketch28.addConstraint(Sketcher.Constraint("Diameter", 0, 150.0))
sketch28.addConstraint(Sketcher.Constraint("DistanceX", 0, 3, -1, 1, 300.0))
sketch28.addConstraint(Sketcher.Constraint("DistanceY", -1, 1, 0, 3, 120.0))
pad28 = doc.addObject("PartDesign::Pad", "Pad027")
body28.addObject(pad28)
pad28.Profile = sketch28
pad28.Length = 15
pad28.Reversed = True
body29 = doc.addObject("PartDesign::Body", "Body028")

# Sketch on XZ plane
sketch29 = doc.addObject("Sketcher::SketchObject", "Sketch028")
body29.addObject(sketch29)
sketch29.AttachmentSupport = (doc.getObject("XZ_Plane028"), [""])
sketch29.MapMode = "FlatFace"
sketch29.AttachmentOffset = App.Placement(App.Vector(0, 0, -900), App.Rotation())
sketch29.addGeometry(Part.Circle(App.Vector(-300, 120, 0), App.Vector(0, 0, 1), 15), False)
sketch29.addConstraint(Sketcher.Constraint("Diameter", 0, 30.0))
sketch29.addConstraint(Sketcher.Constraint("DistanceX", 0, 3, -1, 1, 300.0))
sketch29.addConstraint(Sketcher.Constraint("DistanceY", -1, 1, 0, 3, 120.0))
pad29 = doc.addObject("PartDesign::Pad", "Pad028")
body29.addObject(pad29)
pad29.Profile = sketch29
pad29.Length = 60
pad29.Reversed = True
body30 = doc.addObject("PartDesign::Body", "Body029")

# Sketch on XZ plane
sketch30 = doc.addObject("Sketcher::SketchObject", "Sketch029")
body30.addObject(sketch30)
sketch30.AttachmentSupport = (doc.getObject("XZ_Plane029"), [""])
sketch30.MapMode = "FlatFace"
sketch30.AttachmentOffset = App.Placement(App.Vector(0, 0, -500), App.Rotation())
sketch30.addGeometry(Part.Circle(App.Vector(0, 120, 0), App.Vector(0, 0, 1), 40), False)
sketch30.addConstraint(Sketcher.Constraint("PointOnObject", 0, 3, -2))
sketch30.addConstraint(Sketcher.Constraint("Diameter", 0, 80.0))
sketch30.addConstraint(Sketcher.Constraint("DistanceY", -1, 1, 0, 3, 120.0))
pad30 = doc.addObject("PartDesign::Pad", "Pad029")
body30.addObject(pad30)
pad30.Profile = sketch30
pad30.Length = 400
pad30.Reversed = True
body31 = doc.addObject("PartDesign::Body", "Body030")

# Sketch on XZ plane
sketch31 = doc.addObject("Sketcher::SketchObject", "Sketch030")
body31.addObject(sketch31)
sketch31.AttachmentSupport = (doc.getObject("XZ_Plane030"), [""])
sketch31.MapMode = "FlatFace"
sketch31.AttachmentOffset = App.Placement(App.Vector(0, 0, -572.5), App.Rotation())
sketch31.addGeometry(Part.Circle(App.Vector(0, 120, 0), App.Vector(0, 0, 1), 75), False)
sketch31.addConstraint(Sketcher.Constraint("PointOnObject", 0, 3, -2))
sketch31.addConstraint(Sketcher.Constraint("Diameter", 0, 150.0))
sketch31.addConstraint(Sketcher.Constraint("DistanceY", -1, 1, 0, 3, 120.0))
pad31 = doc.addObject("PartDesign::Pad", "Pad030")
body31.addObject(pad31)
pad31.Profile = sketch31
pad31.Length = 15
pad31.Reversed = True
body32 = doc.addObject("PartDesign::Body", "Body031")

# Sketch on XZ plane
sketch32 = doc.addObject("Sketcher::SketchObject", "Sketch031")
body32.addObject(sketch32)
sketch32.AttachmentSupport = (doc.getObject("XZ_Plane031"), [""])
sketch32.MapMode = "FlatFace"
sketch32.AttachmentOffset = App.Placement(App.Vector(0, 0, -652.5), App.Rotation())
sketch32.addGeometry(Part.Circle(App.Vector(0, 120, 0), App.Vector(0, 0, 1), 75), False)
sketch32.addConstraint(Sketcher.Constraint("PointOnObject", 0, 3, -2))
sketch32.addConstraint(Sketcher.Constraint("Diameter", 0, 150.0))
sketch32.addConstraint(Sketcher.Constraint("DistanceY", -1, 1, 0, 3, 120.0))
pad32 = doc.addObject("PartDesign::Pad", "Pad031")
body32.addObject(pad32)
pad32.Profile = sketch32
pad32.Length = 15
pad32.Reversed = True
body33 = doc.addObject("PartDesign::Body", "Body032")

# Sketch on XZ plane
sketch33 = doc.addObject("Sketcher::SketchObject", "Sketch032")
body33.addObject(sketch33)
sketch33.AttachmentSupport = (doc.getObject("XZ_Plane032"), [""])
sketch33.MapMode = "FlatFace"
sketch33.AttachmentOffset = App.Placement(App.Vector(0, 0, -732.5), App.Rotation())
sketch33.addGeometry(Part.Circle(App.Vector(0, 120, 0), App.Vector(0, 0, 1), 75), False)
sketch33.addConstraint(Sketcher.Constraint("PointOnObject", 0, 3, -2))
sketch33.addConstraint(Sketcher.Constraint("Diameter", 0, 150.0))
sketch33.addConstraint(Sketcher.Constraint("DistanceY", -1, 1, 0, 3, 120.0))
pad33 = doc.addObject("PartDesign::Pad", "Pad032")
body33.addObject(pad33)
pad33.Profile = sketch33
pad33.Length = 15
pad33.Reversed = True
body34 = doc.addObject("PartDesign::Body", "Body033")

# Sketch on XZ plane
sketch34 = doc.addObject("Sketcher::SketchObject", "Sketch033")
body34.addObject(sketch34)
sketch34.AttachmentSupport = (doc.getObject("XZ_Plane033"), [""])
sketch34.MapMode = "FlatFace"
sketch34.AttachmentOffset = App.Placement(App.Vector(0, 0, -812.5), App.Rotation())
sketch34.addGeometry(Part.Circle(App.Vector(0, 120, 0), App.Vector(0, 0, 1), 75), False)
sketch34.addConstraint(Sketcher.Constraint("PointOnObject", 0, 3, -2))
sketch34.addConstraint(Sketcher.Constraint("Diameter", 0, 150.0))
sketch34.addConstraint(Sketcher.Constraint("DistanceY", -1, 1, 0, 3, 120.0))
pad34 = doc.addObject("PartDesign::Pad", "Pad033")
body34.addObject(pad34)
pad34.Profile = sketch34
pad34.Length = 15
pad34.Reversed = True
body35 = doc.addObject("PartDesign::Body", "Body034")

# Sketch on XZ plane
sketch35 = doc.addObject("Sketcher::SketchObject", "Sketch034")
body35.addObject(sketch35)
sketch35.AttachmentSupport = (doc.getObject("XZ_Plane034"), [""])
sketch35.MapMode = "FlatFace"
sketch35.AttachmentOffset = App.Placement(App.Vector(0, 0, -900), App.Rotation())
sketch35.addGeometry(Part.Circle(App.Vector(0, 120, 0), App.Vector(0, 0, 1), 15), False)
sketch35.addConstraint(Sketcher.Constraint("PointOnObject", 0, 3, -2))
sketch35.addConstraint(Sketcher.Constraint("Diameter", 0, 30.0))
sketch35.addConstraint(Sketcher.Constraint("DistanceY", -1, 1, 0, 3, 120.0))
pad35 = doc.addObject("PartDesign::Pad", "Pad034")
body35.addObject(pad35)
pad35.Profile = sketch35
pad35.Length = 60
pad35.Reversed = True
body36 = doc.addObject("PartDesign::Body", "Body035")

# Sketch on XZ plane
sketch36 = doc.addObject("Sketcher::SketchObject", "Sketch035")
body36.addObject(sketch36)
sketch36.AttachmentSupport = (doc.getObject("XZ_Plane035"), [""])
sketch36.MapMode = "FlatFace"
sketch36.AttachmentOffset = App.Placement(App.Vector(0, 0, -500), App.Rotation())
sketch36.addGeometry(Part.Circle(App.Vector(300, 120, 0), App.Vector(0, 0, 1), 40), False)
sketch36.addConstraint(Sketcher.Constraint("Diameter", 0, 80.0))
sketch36.addConstraint(Sketcher.Constraint("DistanceX", -1, 1, 0, 3, 300.0))
sketch36.addConstraint(Sketcher.Constraint("DistanceY", -1, 1, 0, 3, 120.0))
pad36 = doc.addObject("PartDesign::Pad", "Pad035")
body36.addObject(pad36)
pad36.Profile = sketch36
pad36.Length = 400
pad36.Reversed = True
body37 = doc.addObject("PartDesign::Body", "Body036")

# Sketch on XZ plane
sketch37 = doc.addObject("Sketcher::SketchObject", "Sketch036")
body37.addObject(sketch37)
sketch37.AttachmentSupport = (doc.getObject("XZ_Plane036"), [""])
sketch37.MapMode = "FlatFace"
sketch37.AttachmentOffset = App.Placement(App.Vector(0, 0, -572.5), App.Rotation())
sketch37.addGeometry(Part.Circle(App.Vector(300, 120, 0), App.Vector(0, 0, 1), 75), False)
sketch37.addConstraint(Sketcher.Constraint("Diameter", 0, 150.0))
sketch37.addConstraint(Sketcher.Constraint("DistanceX", -1, 1, 0, 3, 300.0))
sketch37.addConstraint(Sketcher.Constraint("DistanceY", -1, 1, 0, 3, 120.0))
pad37 = doc.addObject("PartDesign::Pad", "Pad036")
body37.addObject(pad37)
pad37.Profile = sketch37
pad37.Length = 15
pad37.Reversed = True
body38 = doc.addObject("PartDesign::Body", "Body037")

# Sketch on XZ plane
sketch38 = doc.addObject("Sketcher::SketchObject", "Sketch037")
body38.addObject(sketch38)
sketch38.AttachmentSupport = (doc.getObject("XZ_Plane037"), [""])
sketch38.MapMode = "FlatFace"
sketch38.AttachmentOffset = App.Placement(App.Vector(0, 0, -652.5), App.Rotation())
sketch38.addGeometry(Part.Circle(App.Vector(300, 120, 0), App.Vector(0, 0, 1), 75), False)
sketch38.addConstraint(Sketcher.Constraint("Diameter", 0, 150.0))
sketch38.addConstraint(Sketcher.Constraint("DistanceX", -1, 1, 0, 3, 300.0))
sketch38.addConstraint(Sketcher.Constraint("DistanceY", -1, 1, 0, 3, 120.0))
pad38 = doc.addObject("PartDesign::Pad", "Pad037")
body38.addObject(pad38)
pad38.Profile = sketch38
pad38.Length = 15
pad38.Reversed = True
body39 = doc.addObject("PartDesign::Body", "Body038")

# Sketch on XZ plane
sketch39 = doc.addObject("Sketcher::SketchObject", "Sketch038")
body39.addObject(sketch39)
sketch39.AttachmentSupport = (doc.getObject("XZ_Plane038"), [""])
sketch39.MapMode = "FlatFace"
sketch39.AttachmentOffset = App.Placement(App.Vector(0, 0, -732.5), App.Rotation())
sketch39.addGeometry(Part.Circle(App.Vector(300, 120, 0), App.Vector(0, 0, 1), 75), False)
sketch39.addConstraint(Sketcher.Constraint("Diameter", 0, 150.0))
sketch39.addConstraint(Sketcher.Constraint("DistanceX", -1, 1, 0, 3, 300.0))
sketch39.addConstraint(Sketcher.Constraint("DistanceY", -1, 1, 0, 3, 120.0))
pad39 = doc.addObject("PartDesign::Pad", "Pad038")
body39.addObject(pad39)
pad39.Profile = sketch39
pad39.Length = 15
pad39.Reversed = True
body40 = doc.addObject("PartDesign::Body", "Body039")

# Sketch on XZ plane
sketch40 = doc.addObject("Sketcher::SketchObject", "Sketch039")
body40.addObject(sketch40)
sketch40.AttachmentSupport = (doc.getObject("XZ_Plane039"), [""])
sketch40.MapMode = "FlatFace"
sketch40.AttachmentOffset = App.Placement(App.Vector(0, 0, -812.5), App.Rotation())
sketch40.addGeometry(Part.Circle(App.Vector(300, 120, 0), App.Vector(0, 0, 1), 75), False)
sketch40.addConstraint(Sketcher.Constraint("Diameter", 0, 150.0))
sketch40.addConstraint(Sketcher.Constraint("DistanceX", -1, 1, 0, 3, 300.0))
sketch40.addConstraint(Sketcher.Constraint("DistanceY", -1, 1, 0, 3, 120.0))
pad40 = doc.addObject("PartDesign::Pad", "Pad039")
body40.addObject(pad40)
pad40.Profile = sketch40
pad40.Length = 15
pad40.Reversed = True
body41 = doc.addObject("PartDesign::Body", "Body040")

# Sketch on XZ plane
sketch41 = doc.addObject("Sketcher::SketchObject", "Sketch040")
body41.addObject(sketch41)
sketch41.AttachmentSupport = (doc.getObject("XZ_Plane040"), [""])
sketch41.MapMode = "FlatFace"
sketch41.AttachmentOffset = App.Placement(App.Vector(0, 0, -900), App.Rotation())
sketch41.addGeometry(Part.Circle(App.Vector(300, 120, 0), App.Vector(0, 0, 1), 15), False)
sketch41.addConstraint(Sketcher.Constraint("Diameter", 0, 30.0))
sketch41.addConstraint(Sketcher.Constraint("DistanceX", -1, 1, 0, 3, 300.0))
sketch41.addConstraint(Sketcher.Constraint("DistanceY", -1, 1, 0, 3, 120.0))
pad41 = doc.addObject("PartDesign::Pad", "Pad040")
body41.addObject(pad41)
pad41.Profile = sketch41
pad41.Length = 60
pad41.Reversed = True

doc.recompute()
